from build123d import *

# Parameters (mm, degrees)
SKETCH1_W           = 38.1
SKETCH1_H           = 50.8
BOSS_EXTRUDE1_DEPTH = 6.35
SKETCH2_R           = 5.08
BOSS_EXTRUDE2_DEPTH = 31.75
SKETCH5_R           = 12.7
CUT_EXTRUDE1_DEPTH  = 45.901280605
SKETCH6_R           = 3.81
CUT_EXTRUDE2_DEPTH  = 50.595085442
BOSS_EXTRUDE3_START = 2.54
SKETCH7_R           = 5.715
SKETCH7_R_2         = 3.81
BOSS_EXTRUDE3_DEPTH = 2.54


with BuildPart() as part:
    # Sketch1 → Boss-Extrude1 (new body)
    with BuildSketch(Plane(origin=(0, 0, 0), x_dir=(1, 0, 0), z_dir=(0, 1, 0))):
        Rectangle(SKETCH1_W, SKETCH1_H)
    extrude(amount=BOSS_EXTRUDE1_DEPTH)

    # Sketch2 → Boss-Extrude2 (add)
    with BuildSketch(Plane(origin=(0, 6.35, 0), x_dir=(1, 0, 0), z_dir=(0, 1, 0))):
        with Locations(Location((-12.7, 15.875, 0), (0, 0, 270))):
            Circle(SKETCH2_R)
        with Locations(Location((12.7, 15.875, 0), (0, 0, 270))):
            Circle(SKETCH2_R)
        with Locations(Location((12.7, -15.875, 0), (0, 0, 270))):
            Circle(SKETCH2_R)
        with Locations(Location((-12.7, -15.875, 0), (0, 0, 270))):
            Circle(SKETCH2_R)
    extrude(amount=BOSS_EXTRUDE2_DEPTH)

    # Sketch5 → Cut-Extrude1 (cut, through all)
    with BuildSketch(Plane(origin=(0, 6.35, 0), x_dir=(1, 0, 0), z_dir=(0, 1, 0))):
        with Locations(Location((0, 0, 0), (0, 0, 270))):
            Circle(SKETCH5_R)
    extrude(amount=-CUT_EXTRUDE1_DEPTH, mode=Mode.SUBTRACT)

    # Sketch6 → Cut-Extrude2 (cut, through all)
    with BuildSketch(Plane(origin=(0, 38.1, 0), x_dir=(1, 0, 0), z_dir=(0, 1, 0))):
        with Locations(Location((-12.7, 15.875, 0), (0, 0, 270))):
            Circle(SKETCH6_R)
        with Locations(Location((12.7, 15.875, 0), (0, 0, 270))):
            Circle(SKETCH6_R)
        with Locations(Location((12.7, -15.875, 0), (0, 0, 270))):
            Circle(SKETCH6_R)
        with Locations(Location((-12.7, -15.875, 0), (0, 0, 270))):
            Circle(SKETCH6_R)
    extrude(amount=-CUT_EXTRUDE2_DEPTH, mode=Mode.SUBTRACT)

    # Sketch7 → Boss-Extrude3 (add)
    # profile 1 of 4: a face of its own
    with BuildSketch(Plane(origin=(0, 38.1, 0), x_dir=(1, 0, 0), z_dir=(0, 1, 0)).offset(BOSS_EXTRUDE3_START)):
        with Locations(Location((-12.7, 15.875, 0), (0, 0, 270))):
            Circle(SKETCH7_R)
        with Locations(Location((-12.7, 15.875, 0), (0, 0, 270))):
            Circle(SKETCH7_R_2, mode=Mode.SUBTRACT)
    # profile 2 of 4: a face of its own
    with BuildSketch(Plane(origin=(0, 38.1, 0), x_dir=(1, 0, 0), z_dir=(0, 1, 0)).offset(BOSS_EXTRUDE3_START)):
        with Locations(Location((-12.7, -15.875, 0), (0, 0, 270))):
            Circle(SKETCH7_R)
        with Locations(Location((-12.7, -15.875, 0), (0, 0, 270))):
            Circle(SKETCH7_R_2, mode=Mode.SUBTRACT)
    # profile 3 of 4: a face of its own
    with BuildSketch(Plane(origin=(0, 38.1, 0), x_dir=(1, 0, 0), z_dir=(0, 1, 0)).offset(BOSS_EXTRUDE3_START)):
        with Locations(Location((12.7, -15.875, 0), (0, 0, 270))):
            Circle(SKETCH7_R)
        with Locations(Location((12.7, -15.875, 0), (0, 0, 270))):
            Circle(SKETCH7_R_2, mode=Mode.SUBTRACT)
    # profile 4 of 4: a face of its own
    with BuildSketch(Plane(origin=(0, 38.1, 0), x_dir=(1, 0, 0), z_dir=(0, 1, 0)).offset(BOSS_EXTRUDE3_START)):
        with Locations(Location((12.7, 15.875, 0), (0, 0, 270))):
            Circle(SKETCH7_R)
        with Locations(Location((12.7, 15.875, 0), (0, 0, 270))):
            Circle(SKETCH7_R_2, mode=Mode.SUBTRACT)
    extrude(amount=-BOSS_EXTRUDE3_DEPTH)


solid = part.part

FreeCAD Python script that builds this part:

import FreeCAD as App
import Part
import Sketcher
from FreeCAD import Vector
Q = App.Units.Quantity


def add_polygon(sketch, points):
    """Adds a closed chain of lines whose ends are joined by coincident constraints."""
    first, n = sketch.GeometryCount, len(points)
    for a, b in zip(points, points[1:] + points[:1]):
        sketch.addGeometry(Part.LineSegment(App.Vector(*a, 0), App.Vector(*b, 0)), False)
    for i in range(n):
        sketch.addConstraint(Sketcher.Constraint("Coincident", first + i, 2, first + (i + 1) % n, 1))

doc = App.newDocument("Part")
body = doc.addObject("PartDesign::Body", "Body")

# Sketch on XZ plane
sketch1 = body.newObject("Sketcher::SketchObject", "Sketch")
sketch1.AttachmentSupport = (doc.getObject("XZ_Plane"), [""])
sketch1.MapMode = "FlatFace"
add_polygon(sketch1, [(-19, -25), (-19, 25), (19, 25), (19, -25)])  # lines 0-3
sketch1.addConstraint(Sketcher.Constraint("Vertical", 0))
sketch1.addConstraint(Sketcher.Constraint("Horizontal", 1))
sketch1.addConstraint(Sketcher.Constraint("Vertical", 2))
sketch1.addConstraint(Sketcher.Constraint("Horizontal", 3))
sketch1.addConstraint(Sketcher.Constraint("Symmetric", 0, 2, 2, 2, -1, 1))
sketch1.addConstraint(Sketcher.Constraint("DistanceY", 0, 1, 0, 2, Q("2 in")))
sketch1.addConstraint(Sketcher.Constraint("DistanceX", 1, 1, 1, 2, Q("1.5 in")))
pad1 = body.newObject("PartDesign::Pad", "Pad")
pad1.Profile = sketch1
pad1.Length = Q("0.25 in")
pad1.Reversed = True

# Sketch on XZ plane
sketch2 = body.newObject("Sketcher::SketchObject", "Sketch001")
sketch2.AttachmentSupport = (doc.getObject("XZ_Plane"), [""])
sketch2.MapMode = "FlatFace"
sketch2.AttachmentOffset = App.Placement(Vector(0, 0, -0.25 * 25.4), App.Rotation())
sketch2.addGeometry(Part.Circle(Vector(-13, -16, 0), Vector(0, 0, 1), 5), False)
sketch2.addGeometry(Part.Circle(Vector(13, -16, 0), Vector(0, 0, 1), 5), False)
sketch2.addGeometry(Part.Circle(Vector(13, 16, 0), Vector(0, 0, 1), 5), False)
sketch2.addGeometry(Part.Circle(Vector(-13, 16, 0), Vector(0, 0, 1), 5), False)
sketch2.addConstraint(Sketcher.Constraint("Equal", 0, 1))
sketch2.addConstraint(Sketcher.Constraint("Equal", 1, 2))
sketch2.addConstraint(Sketcher.Constraint("Equal", 2, 3))
sketch2.addConstraint(Sketcher.Constraint("Symmetric", 0, 3, 2, 3, -1, 1))
sketch2.addConstraint(Sketcher.Constraint("Symmetric", 1, 3, 3, 3, -1, 1))
sketch2.addConstraint(Sketcher.Constraint("Symmetric", 0, 3, 1, 3, -2))
sketch2.addConstraint(Sketcher.Constraint("Diameter", 0, Q("0.4 in")))
sketch2.addConstraint(Sketcher.Constraint("DistanceX", 0, 3, 1, 3, Q("1 in")))
sketch2.addConstraint(Sketcher.Constraint("DistanceY", 1, 3, 2, 3, Q("1.25 in")))
pad2 = body.newObject("PartDesign::Pad", "Pad001")
pad2.Profile = sketch2
pad2.Length = Q("1.25 in")
pad2.Reversed = True

# Sketch on XZ plane
sketch3 = body.newObject("Sketcher::SketchObject", "Sketch002")
sketch3.AttachmentSupport = (doc.getObject("XZ_Plane"), [""])
sketch3.MapMode = "FlatFace"
sketch3.AttachmentOffset = App.Placement(Vector(0, 0, -0.25 * 25.4), App.Rotation())
sketch3.addGeometry(Part.Circle(Vector(0, 0, 0), Vector(0, 0, 1), 13), False)
sketch3.addConstraint(Sketcher.Constraint("Coincident", 0, 3, -1, 1))
sketch3.addConstraint(Sketcher.Constraint("Diameter", 0, Q("1 in")))
pocket1 = body.newObject("PartDesign::Pocket", "Pocket")
pocket1.Profile = sketch3
pocket1.Type = "ThroughAll"
pocket1.Reversed = True

# Sketch on XZ plane
sketch4 = body.newObject("Sketcher::SketchObject", "Sketch003")
sketch4.AttachmentSupport = (doc.getObject("XZ_Plane"), [""])
sketch4.MapMode = "FlatFace"
sketch4.AttachmentOffset = App.Placement(Vector(0, 0, -1.5 * 25.4), App.Rotation())
sketch4.addGeometry(Part.Circle(Vector(-12.7, -15.9, 0), Vector(0, 0, 1), 3.8), False)
sketch4.addGeometry(Part.Circle(Vector(12.7, -15.9, 0), Vector(0, 0, 1), 3.8), False)
sketch4.addGeometry(Part.Circle(Vector(12.7, 15.9, 0), Vector(0, 0, 1), 3.8), False)
sketch4.addGeometry(Part.Circle(Vector(-12.7, 15.9, 0), Vector(0, 0, 1), 3.8), False)
sketch4.addConstraint(Sketcher.Constraint("Equal", 0, 1))
sketch4.addConstraint(Sketcher.Constraint("Equal", 1, 2))
sketch4.addConstraint(Sketcher.Constraint("Equal", 2, 3))
sketch4.addConstraint(Sketcher.Constraint("Symmetric", 0, 3, 2, 3, -1, 1))
sketch4.addConstraint(Sketcher.Constraint("Symmetric", 1, 3, 3, 3, -1, 1))
sketch4.addConstraint(Sketcher.Constraint("Symmetric", 0, 3, 1, 3, -2))
sketch4.addConstraint(Sketcher.Constraint("Diameter", 0, Q("0.3 in")))
sketch4.addConstraint(Sketcher.Constraint("DistanceX", 0, 3, 1, 3, Q("1 in")))
sketch4.addConstraint(Sketcher.Constraint("DistanceY", 1, 3, 2, 3, Q("1.25 in")))
pocket2 = body.newObject("PartDesign::Pocket", "Pocket001")
pocket2.Profile = sketch4
pocket2.Type = "ThroughAll"
pocket2.Reversed = True

# Sketch on XZ plane
sketch5 = body.newObject("Sketcher::SketchObject", "Sketch004")
sketch5.AttachmentSupport = (doc.getObject("XZ_Plane"), [""])
sketch5.MapMode = "FlatFace"
sketch5.AttachmentOffset = App.Placement(Vector(0, 0, -1.6 * 25.4), App.Rotation())
sketch5.addGeometry(Part.Circle(Vector(-12.7, -15.9, 0), Vector(0, 0, 1), 5.7), False)
sketch5.addGeometry(Part.Circle(Vector(-12.7, -15.9, 0), Vector(0, 0, 1), 3.8), False)
sketch5.addGeometry(Part.Circle(Vector(-12.7, 15.9, 0), Vector(0, 0, 1), 5.7), False)
sketch5.addGeometry(Part.Circle(Vector(-12.7, 15.9, 0), Vector(0, 0, 1), 3.8), False)
sketch5.addGeometry(Part.Circle(Vector(12.7, 15.9, 0), Vector(0, 0, 1), 5.7), False)
sketch5.addGeometry(Part.Circle(Vector(12.7, 15.9, 0), Vector(0, 0, 1), 3.8), False)
sketch5.addGeometry(Part.Circle(Vector(12.7, -15.9, 0), Vector(0, 0, 1), 5.7), False)
sketch5.addGeometry(Part.Circle(Vector(12.7, -15.9, 0), Vector(0, 0, 1), 3.8), False)
sketch5.addConstraint(Sketcher.Constraint("Coincident", 1, 3, 0, 3))
sketch5.addConstraint(Sketcher.Constraint("Coincident", 3, 3, 2, 3))
sketch5.addConstraint(Sketcher.Constraint("Coincident", 5, 3, 4, 3))
sketch5.addConstraint(Sketcher.Constraint("Coincident", 7, 3, 6, 3))
sketch5.addConstraint(Sketcher.Constraint("Equal", 0, 2))
sketch5.addConstraint(Sketcher.Constraint("Equal", 1, 3))
sketch5.addConstraint(Sketcher.Constraint("Equal", 2, 4))
sketch5.addConstraint(Sketcher.Constraint("Equal", 3, 5))
sketch5.addConstraint(Sketcher.Constraint("Equal", 4, 6))
sketch5.addConstraint(Sketcher.Constraint("Equal", 5, 7))
sketch5.addConstraint(Sketcher.Constraint("Symmetric", 0, 3, 4, 3, -1, 1))
sketch5.addConstraint(Sketcher.Constraint("Symmetric", 2, 3, 6, 3, -1, 1))
sketch5.addConstraint(Sketcher.Constraint("Symmetric", 2, 3, 4, 3, -2))
sketch5.addConstraint(Sketcher.Constraint("Diameter", 1, Q("0.3 in")))
sketch5.addConstraint(Sketcher.Constraint("Diameter", 0, Q("0.45 in")))
sketch5.addConstraint(Sketcher.Constraint("DistanceX", 2, 3, 4, 3, Q("1 in")))
sketch5.addConstraint(Sketcher.Constraint("DistanceY", 0, 3, 2, 3, Q("1.25 in")))
pad3 = body.newObject("PartDesign::Pad", "Pad002")
pad3.Profile = sketch5
pad3.Length = Q("0.1 in")

doc.recompute()
